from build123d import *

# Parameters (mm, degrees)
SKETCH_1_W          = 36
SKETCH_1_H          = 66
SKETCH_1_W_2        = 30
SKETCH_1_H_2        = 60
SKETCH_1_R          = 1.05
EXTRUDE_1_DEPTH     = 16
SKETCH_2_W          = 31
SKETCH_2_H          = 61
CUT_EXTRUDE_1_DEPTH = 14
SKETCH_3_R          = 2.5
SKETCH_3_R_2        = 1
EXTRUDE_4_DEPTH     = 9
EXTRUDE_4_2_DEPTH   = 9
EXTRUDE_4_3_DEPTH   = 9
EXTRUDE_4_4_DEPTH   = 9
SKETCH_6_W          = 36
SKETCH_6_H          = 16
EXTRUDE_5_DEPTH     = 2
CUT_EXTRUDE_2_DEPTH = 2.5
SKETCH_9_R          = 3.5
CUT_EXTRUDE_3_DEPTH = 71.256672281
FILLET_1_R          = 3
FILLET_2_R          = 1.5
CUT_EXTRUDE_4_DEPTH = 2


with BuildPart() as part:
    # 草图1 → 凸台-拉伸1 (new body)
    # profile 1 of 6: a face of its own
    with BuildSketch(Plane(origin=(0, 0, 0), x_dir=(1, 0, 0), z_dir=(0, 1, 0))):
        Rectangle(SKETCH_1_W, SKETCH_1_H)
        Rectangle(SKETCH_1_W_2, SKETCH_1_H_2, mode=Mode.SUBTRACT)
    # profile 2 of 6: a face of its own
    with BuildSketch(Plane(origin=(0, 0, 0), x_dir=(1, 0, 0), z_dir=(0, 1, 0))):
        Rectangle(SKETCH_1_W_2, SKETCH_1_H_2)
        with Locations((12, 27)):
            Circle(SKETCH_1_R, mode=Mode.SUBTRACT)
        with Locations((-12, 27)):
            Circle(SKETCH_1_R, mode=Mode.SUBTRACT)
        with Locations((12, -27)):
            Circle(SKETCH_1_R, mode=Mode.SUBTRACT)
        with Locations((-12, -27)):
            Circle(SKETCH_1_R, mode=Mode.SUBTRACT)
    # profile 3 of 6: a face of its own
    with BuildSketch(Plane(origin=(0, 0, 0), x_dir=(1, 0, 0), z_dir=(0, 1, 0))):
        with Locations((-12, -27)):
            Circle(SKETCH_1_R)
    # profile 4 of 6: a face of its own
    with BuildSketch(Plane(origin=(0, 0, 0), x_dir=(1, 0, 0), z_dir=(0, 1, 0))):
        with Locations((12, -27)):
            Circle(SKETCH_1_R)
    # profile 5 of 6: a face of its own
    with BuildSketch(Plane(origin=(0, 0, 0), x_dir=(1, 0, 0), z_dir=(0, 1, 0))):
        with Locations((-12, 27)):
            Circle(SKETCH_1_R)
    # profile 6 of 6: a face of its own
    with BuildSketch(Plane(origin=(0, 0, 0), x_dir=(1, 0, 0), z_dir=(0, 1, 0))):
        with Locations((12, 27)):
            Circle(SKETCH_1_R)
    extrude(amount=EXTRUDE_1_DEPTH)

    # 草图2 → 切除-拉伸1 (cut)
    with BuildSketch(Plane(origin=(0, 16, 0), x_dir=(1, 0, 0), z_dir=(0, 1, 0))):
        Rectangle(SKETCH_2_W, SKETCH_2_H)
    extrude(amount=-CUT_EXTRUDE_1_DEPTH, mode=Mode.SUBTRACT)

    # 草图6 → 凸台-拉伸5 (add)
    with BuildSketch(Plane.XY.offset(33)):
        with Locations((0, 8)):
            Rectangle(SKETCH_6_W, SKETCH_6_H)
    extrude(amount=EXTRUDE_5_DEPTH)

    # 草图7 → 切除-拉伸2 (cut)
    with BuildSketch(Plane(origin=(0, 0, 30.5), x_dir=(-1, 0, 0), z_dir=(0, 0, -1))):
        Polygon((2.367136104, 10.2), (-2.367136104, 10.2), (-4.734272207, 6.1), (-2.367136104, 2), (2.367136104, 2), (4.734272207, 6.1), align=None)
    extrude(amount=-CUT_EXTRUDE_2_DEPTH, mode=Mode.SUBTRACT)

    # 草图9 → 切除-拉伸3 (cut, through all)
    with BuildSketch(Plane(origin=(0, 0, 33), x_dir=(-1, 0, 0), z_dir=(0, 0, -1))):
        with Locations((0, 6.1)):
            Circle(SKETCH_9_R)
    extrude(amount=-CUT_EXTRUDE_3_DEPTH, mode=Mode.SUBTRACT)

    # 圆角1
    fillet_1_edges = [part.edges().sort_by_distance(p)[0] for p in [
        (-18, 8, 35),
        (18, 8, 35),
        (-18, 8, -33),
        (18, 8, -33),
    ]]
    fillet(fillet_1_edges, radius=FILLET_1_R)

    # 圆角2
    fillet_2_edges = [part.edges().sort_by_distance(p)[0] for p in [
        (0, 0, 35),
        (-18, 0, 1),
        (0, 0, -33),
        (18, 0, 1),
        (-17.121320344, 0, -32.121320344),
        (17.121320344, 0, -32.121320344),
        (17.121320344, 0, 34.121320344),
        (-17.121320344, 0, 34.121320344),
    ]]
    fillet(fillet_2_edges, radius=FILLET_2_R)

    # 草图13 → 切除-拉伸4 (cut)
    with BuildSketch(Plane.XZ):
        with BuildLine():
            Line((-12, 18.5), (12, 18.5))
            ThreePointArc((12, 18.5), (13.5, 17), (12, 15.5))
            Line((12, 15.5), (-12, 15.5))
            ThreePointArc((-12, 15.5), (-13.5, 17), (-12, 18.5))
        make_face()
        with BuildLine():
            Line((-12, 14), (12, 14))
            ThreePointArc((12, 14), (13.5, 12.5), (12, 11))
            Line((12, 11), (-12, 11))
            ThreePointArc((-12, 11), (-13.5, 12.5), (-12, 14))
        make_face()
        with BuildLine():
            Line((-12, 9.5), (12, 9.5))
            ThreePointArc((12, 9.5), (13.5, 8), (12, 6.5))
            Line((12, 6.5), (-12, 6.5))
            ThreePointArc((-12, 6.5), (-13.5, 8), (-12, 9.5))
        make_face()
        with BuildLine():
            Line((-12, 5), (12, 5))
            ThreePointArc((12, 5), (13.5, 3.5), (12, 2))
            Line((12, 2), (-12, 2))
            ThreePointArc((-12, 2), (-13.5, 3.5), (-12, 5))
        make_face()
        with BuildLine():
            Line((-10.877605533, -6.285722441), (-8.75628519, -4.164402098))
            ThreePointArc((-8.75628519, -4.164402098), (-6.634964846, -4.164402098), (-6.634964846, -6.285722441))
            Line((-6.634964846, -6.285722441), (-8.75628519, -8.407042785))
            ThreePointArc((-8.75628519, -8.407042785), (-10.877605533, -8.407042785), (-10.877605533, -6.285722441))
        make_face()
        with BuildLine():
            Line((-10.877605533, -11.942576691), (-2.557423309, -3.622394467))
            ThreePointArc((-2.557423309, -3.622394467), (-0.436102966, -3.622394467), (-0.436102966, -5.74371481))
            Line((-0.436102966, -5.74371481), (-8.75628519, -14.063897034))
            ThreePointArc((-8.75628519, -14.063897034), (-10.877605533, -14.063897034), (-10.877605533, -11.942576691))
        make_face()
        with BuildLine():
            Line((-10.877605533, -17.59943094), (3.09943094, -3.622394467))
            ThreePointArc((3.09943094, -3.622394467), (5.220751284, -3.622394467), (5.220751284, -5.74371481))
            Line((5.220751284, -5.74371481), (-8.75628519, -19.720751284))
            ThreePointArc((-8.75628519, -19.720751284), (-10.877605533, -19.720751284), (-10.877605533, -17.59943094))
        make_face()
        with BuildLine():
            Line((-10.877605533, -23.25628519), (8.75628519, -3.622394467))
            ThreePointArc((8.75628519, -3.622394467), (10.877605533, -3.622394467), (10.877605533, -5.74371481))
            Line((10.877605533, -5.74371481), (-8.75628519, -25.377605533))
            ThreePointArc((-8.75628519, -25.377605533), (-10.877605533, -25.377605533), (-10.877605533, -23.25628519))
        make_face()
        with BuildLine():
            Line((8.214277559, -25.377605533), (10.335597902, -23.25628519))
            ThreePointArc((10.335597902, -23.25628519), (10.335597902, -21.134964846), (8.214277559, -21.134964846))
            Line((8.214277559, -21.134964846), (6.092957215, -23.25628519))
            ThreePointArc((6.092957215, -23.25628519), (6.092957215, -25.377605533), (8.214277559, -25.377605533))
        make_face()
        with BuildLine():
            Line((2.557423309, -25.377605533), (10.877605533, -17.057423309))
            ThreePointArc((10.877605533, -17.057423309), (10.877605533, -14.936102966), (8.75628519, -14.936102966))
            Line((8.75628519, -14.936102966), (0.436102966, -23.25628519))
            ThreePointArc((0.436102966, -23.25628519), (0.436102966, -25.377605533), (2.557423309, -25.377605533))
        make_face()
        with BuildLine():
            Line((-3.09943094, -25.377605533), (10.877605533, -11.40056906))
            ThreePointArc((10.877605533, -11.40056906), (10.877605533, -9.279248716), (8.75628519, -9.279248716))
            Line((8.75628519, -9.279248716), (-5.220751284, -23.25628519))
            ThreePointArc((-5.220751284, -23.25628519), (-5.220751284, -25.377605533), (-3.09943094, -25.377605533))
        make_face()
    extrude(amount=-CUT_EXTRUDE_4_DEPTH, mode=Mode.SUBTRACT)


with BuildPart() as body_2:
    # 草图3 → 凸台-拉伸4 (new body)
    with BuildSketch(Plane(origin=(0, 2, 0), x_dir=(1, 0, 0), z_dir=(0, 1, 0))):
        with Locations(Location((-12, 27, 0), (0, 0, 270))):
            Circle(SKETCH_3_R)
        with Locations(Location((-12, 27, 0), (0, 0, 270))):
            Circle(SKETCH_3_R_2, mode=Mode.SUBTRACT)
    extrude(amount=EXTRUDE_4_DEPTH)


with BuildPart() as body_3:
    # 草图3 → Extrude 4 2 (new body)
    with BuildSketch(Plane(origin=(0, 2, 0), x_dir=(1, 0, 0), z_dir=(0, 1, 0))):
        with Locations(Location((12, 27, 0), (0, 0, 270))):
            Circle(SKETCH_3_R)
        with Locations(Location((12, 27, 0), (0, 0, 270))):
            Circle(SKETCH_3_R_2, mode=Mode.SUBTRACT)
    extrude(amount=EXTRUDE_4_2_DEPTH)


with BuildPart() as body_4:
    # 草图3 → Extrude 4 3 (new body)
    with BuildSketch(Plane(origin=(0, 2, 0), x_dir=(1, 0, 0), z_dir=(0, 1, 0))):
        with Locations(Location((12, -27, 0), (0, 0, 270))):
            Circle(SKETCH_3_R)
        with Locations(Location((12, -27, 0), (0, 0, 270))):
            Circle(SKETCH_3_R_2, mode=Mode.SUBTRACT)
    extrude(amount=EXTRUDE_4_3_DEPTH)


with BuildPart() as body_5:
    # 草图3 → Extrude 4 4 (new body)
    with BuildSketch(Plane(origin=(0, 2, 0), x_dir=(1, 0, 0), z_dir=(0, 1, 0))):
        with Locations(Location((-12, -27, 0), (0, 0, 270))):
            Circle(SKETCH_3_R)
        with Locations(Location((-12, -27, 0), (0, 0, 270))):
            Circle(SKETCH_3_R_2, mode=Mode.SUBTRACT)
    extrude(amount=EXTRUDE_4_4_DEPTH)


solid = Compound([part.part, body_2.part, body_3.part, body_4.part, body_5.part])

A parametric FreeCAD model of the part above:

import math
import FreeCAD as App
import Part
import Sketcher

V = App.Vector
Q = App.Units.Quantity


def edges_at(feature, points):
    """Names of the edges that pass closest to the given points."""
    edges = feature.Shape.Edges
    near = lambda p: min(range(len(edges)), key=lambda i: edges[i].distToShape(Part.Vertex(*p))[0])
    return sorted({f"Edge{near(p) + 1}" for p in points})

doc = App.newDocument("Part")
body = doc.addObject("PartDesign::Body", "Body")

sketch1 = body.newObject("Sketcher::SketchObject", "Sketch")
sketch1.AttachmentSupport = (doc.getObject("XZ_Plane"), [""])
sketch1.MapMode = "FlatFace"
sketch1.addGeometry(Part.LineSegment(V(-18, -33, 0), V(-18, 33, 0)), False)
sketch1.addGeometry(Part.LineSegment(V(-18, 33, 0), V(18, 33, 0)), False)
sketch1.addGeometry(Part.LineSegment(V(18, 33, 0), V(18, -33, 0)), False)
sketch1.addGeometry(Part.LineSegment(V(18, -33, 0), V(-18, -33, 0)), False)
sketch1.addConstraint(Sketcher.Constraint("Coincident", 0, 2, 1, 1))
sketch1.addConstraint(Sketcher.Constraint("Coincident", 1, 2, 2, 1))
sketch1.addConstraint(Sketcher.Constraint("Coincident", 2, 2, 3, 1))
sketch1.addConstraint(Sketcher.Constraint("Coincident", 3, 2, 0, 1))
sketch1.addConstraint(Sketcher.Constraint("Vertical", 0))
sketch1.addConstraint(Sketcher.Constraint("Horizontal", 1))
sketch1.addConstraint(Sketcher.Constraint("Vertical", 2))
sketch1.addConstraint(Sketcher.Constraint("Horizontal", 3))
sketch1.addConstraint(Sketcher.Constraint("Symmetric", 0, 2, 2, 2, -1, 1))
sketch1.addConstraint(Sketcher.Constraint("DistanceX", 1, 1, 1, 2, 36.0))
sketch1.addConstraint(Sketcher.Constraint("DistanceY", 0, 1, 0, 2, 66.0))
pad1 = body.newObject("PartDesign::Pad", "Pad")
pad1.Profile = sketch1
pad1.Length = 16
pad1.Reversed = True

sketch2 = body.newObject("Sketcher::SketchObject", "Sketch001")
sketch2.AttachmentSupport = (doc.getObject("XZ_Plane"), [""])
sketch2.MapMode = "FlatFace"
sketch2.AttachmentOffset = App.Placement(V(0, 0, -16), App.Rotation())
sketch2.addGeometry(Part.LineSegment(V(-15.5, -30.5, 0), V(-15.5, 30.5, 0)), False)
sketch2.addGeometry(Part.LineSegment(V(-15.5, 30.5, 0), V(15.5, 30.5, 0)), False)
sketch2.addGeometry(Part.LineSegment(V(15.5, 30.5, 0), V(15.5, -30.5, 0)), False)
sketch2.addGeometry(Part.LineSegment(V(15.5, -30.5, 0), V(-15.5, -30.5, 0)), False)
sketch2.addConstraint(Sketcher.Constraint("Coincident", 0, 2, 1, 1))
sketch2.addConstraint(Sketcher.Constraint("Coincident", 1, 2, 2, 1))
sketch2.addConstraint(Sketcher.Constraint("Coincident", 2, 2, 3, 1))
sketch2.addConstraint(Sketcher.Constraint("Coincident", 3, 2, 0, 1))
sketch2.addConstraint(Sketcher.Constraint("Vertical", 0))
sketch2.addConstraint(Sketcher.Constraint("Horizontal", 1))
sketch2.addConstraint(Sketcher.Constraint("Vertical", 2))
sketch2.addConstraint(Sketcher.Constraint("Horizontal", 3))
sketch2.addConstraint(Sketcher.Constraint("Symmetric", 0, 2, 2, 2, -1, 1))
sketch2.addConstraint(Sketcher.Constraint("DistanceX", 1, 1, 1, 2, 31.0))
sketch2.addConstraint(Sketcher.Constraint("DistanceY", 0, 1, 0, 2, 61.0))
pocket1 = body.newObject("PartDesign::Pocket", "Pocket")
pocket1.Profile = sketch2
pocket1.Length = 14
pocket1.Reversed = True

sketch3 = body.newObject("Sketcher::SketchObject", "Sketch002")
sketch3.AttachmentSupport = (doc.getObject("XY_Plane"), [""])
sketch3.MapMode = "FlatFace"
sketch3.AttachmentOffset = App.Placement(V(0, 0, 33), App.Rotation())
sketch3.addGeometry(Part.LineSegment(V(-18, 16, 0), V(-18, 0, 0)), False)
sketch3.addGeometry(Part.LineSegment(V(-18, 0, 0), V(18, 0, 0)), False)
sketch3.addGeometry(Part.LineSegment(V(18, 0, 0), V(18, 16, 0)), False)
sketch3.addGeometry(Part.LineSegment(V(18, 16, 0), V(-18, 16, 0)), False)
sketch3.addConstraint(Sketcher.Constraint("Coincident", 0, 2, 1, 1))
sketch3.addConstraint(Sketcher.Constraint("Coincident", 1, 2, 2, 1))
sketch3.addConstraint(Sketcher.Constraint("Coincident", 2, 2, 3, 1))
sketch3.addConstraint(Sketcher.Constraint("Coincident", 3, 2, 0, 1))
sketch3.addConstraint(Sketcher.Constraint("Vertical", 0))
sketch3.addConstraint(Sketcher.Constraint("Horizontal", 1))
sketch3.addConstraint(Sketcher.Constraint("Vertical", 2))
sketch3.addConstraint(Sketcher.Constraint("Horizontal", 3))
sketch3.addConstraint(Sketcher.Constraint("Symmetric", 0, 2, 1, 2, -1, 1))
sketch3.addConstraint(Sketcher.Constraint("DistanceX", 1, 1, 1, 2, 36.0))
sketch3.addConstraint(Sketcher.Constraint("DistanceY", 0, 2, 0, 1, 16.0))
pad2 = body.newObject("PartDesign::Pad", "Pad001")
pad2.Profile = sketch3
pad2.Length = 2

sketch4 = body.newObject("Sketcher::SketchObject", "Sketch003")
sketch4.AttachmentSupport = (doc.getObject("XY_Plane"), [""])
sketch4.MapMode = "FlatFace"
sketch4.AttachmentOffset = App.Placement(V(0, 0, 30.5), App.Rotation())
sketch4.addGeometry(Part.LineSegment(V(-2.367136, 10.2, 0), V(2.367136, 10.2, 0)), False)
sketch4.addGeometry(Part.LineSegment(V(2.367136, 10.2, 0), V(4.734272, 6.1, 0)), False)
sketch4.addGeometry(Part.LineSegment(V(4.734272, 6.1, 0), V(2.367136, 2, 0)), False)
sketch4.addGeometry(Part.LineSegment(V(2.367136, 2, 0), V(-2.367136, 2, 0)), False)
sketch4.addGeometry(Part.LineSegment(V(-2.367136, 2, 0), V(-4.734272, 6.1, 0)), False)
sketch4.addGeometry(Part.LineSegment(V(-4.734272, 6.1, 0), V(-2.367136, 10.2, 0)), False)
sketch4.addConstraint(Sketcher.Constraint("Coincident", 0, 2, 1, 1))
sketch4.addConstraint(Sketcher.Constraint("Coincident", 1, 2, 2, 1))
sketch4.addConstraint(Sketcher.Constraint("Coincident", 2, 2, 3, 1))
sketch4.addConstraint(Sketcher.Constraint("Coincident", 3, 2, 4, 1))
sketch4.addConstraint(Sketcher.Constraint("Coincident", 4, 2, 5, 1))
sketch4.addConstraint(Sketcher.Constraint("Coincident", 5, 2, 0, 1))
sketch4.addConstraint(Sketcher.Constraint("Horizontal", 0))
sketch4.addConstraint(Sketcher.Constraint("Horizontal", 3))
sketch4.addConstraint(Sketcher.Constraint("Symmetric", 1, 2, 4, 2, -2))
sketch4.addConstraint(Sketcher.Constraint("Parallel", 1, 4))
sketch4.addConstraint(Sketcher.Constraint("Parallel", 2, 5))
sketch4.addConstraint(Sketcher.Constraint("Vertical", 0, 2, 2, 2))
sketch4.addConstraint(Sketcher.Constraint("Vertical", 3, 2, 5, 2))
sketch4.addConstraint(Sketcher.Constraint("Angle", 1, Q("-60 deg")))
sketch4.addConstraint(Sketcher.Constraint("DistanceY", -1, 1, 2, 2, 2.0))
sketch4.addConstraint(Sketcher.Constraint("DistanceY", -1, 1, 0, 2, 10.2))
sketch4.addConstraint(Sketcher.Constraint("DistanceX", 0, 1, 0, 2, 4.734272))
pocket2 = body.newObject("PartDesign::Pocket", "Pocket001")
pocket2.Profile = sketch4
pocket2.Length = 2.5
pocket2.Reversed = True

sketch5 = body.newObject("Sketcher::SketchObject", "Sketch004")
sketch5.AttachmentSupport = (doc.getObject("XY_Plane"), [""])
sketch5.MapMode = "FlatFace"
sketch5.AttachmentOffset = App.Placement(V(0, 0, 33), App.Rotation())
sketch5.addGeometry(Part.Circle(V(0, 6.1, 0), V(0, 0, 1), 3.5), False)
sketch5.addConstraint(Sketcher.Constraint("PointOnObject", 0, 3, -2))
sketch5.addConstraint(Sketcher.Constraint("Diameter", 0, 7.0))
sketch5.addConstraint(Sketcher.Constraint("DistanceY", -1, 1, 0, 3, 6.1))
pocket3 = body.newObject("PartDesign::Pocket", "Pocket002")
pocket3.Profile = sketch5
pocket3.Type = "ThroughAll"
pocket3.Reversed = True
doc.recompute()

fillet = body.newObject("PartDesign::Fillet", "Fillet")
fillet.Base = (pocket3, edges_at(pocket3, [
    (-18, 8, 35),
    (18, 8, 35),
    (-18, 8, -33),
    (18, 8, -33),
]))
fillet.Radius = 3
doc.recompute()

fillet2 = body.newObject("PartDesign::Fillet", "Fillet001")
fillet2.Base = (fillet, edges_at(fillet, [
    (0, 0, 35),
    (-18, 0, 1),
    (0, 0, -33),
    (18, 0, 1),
    (-17.121, 0, -32.121),
    (17.121, 0, -32.121),
    (17.121, 0, 34.121),
    (-17.121, 0, 34.121),
]))
fillet2.Radius = 1.5

sketch6 = body.newObject("Sketcher::SketchObject", "Sketch005")
sketch6.AttachmentSupport = (doc.getObject("XZ_Plane"), [""])
sketch6.MapMode = "FlatFace"
sketch6.addGeometry(Part.LineSegment(V(12, 18.5, 0), V(-12, 18.5, 0)), False)
sketch6.addGeometry(Part.ArcOfCircle(Part.Circle(V(-12, 17, 0), V(0, 0, 1), 1.5), math.radians(90), math.radians(270)), False)
sketch6.addGeometry(Part.LineSegment(V(-12, 15.5, 0), V(12, 15.5, 0)), False)
sketch6.addGeometry(Part.ArcOfCircle(Part.Circle(V(12, 17, 0), V(0, 0, 1), 1.5), math.radians(-90), math.radians(90)), False)
sketch6.addGeometry(Part.LineSegment(V(12, 14, 0), V(-12, 14, 0)), False)
sketch6.addGeometry(Part.ArcOfCircle(Part.Circle(V(-12, 12.5, 0), V(0, 0, 1), 1.5), math.radians(90), math.radians(270)), False)
sketch6.addGeometry(Part.LineSegment(V(-12, 11, 0), V(12, 11, 0)), False)
sketch6.addGeometry(Part.ArcOfCircle(Part.Circle(V(12, 12.5, 0), V(0, 0, 1), 1.5), math.radians(-90), math.radians(90)), False)
sketch6.addGeometry(Part.LineSegment(V(12, 9.5, 0), V(-12, 9.5, 0)), False)
sketch6.addGeometry(Part.ArcOfCircle(Part.Circle(V(-12, 8, 0), V(0, 0, 1), 1.5), math.radians(90), math.radians(270)), False)
sketch6.addGeometry(Part.LineSegment(V(-12, 6.5, 0), V(12, 6.5, 0)), False)
sketch6.addGeometry(Part.ArcOfCircle(Part.Circle(V(12, 8, 0), V(0, 0, 1), 1.5), math.radians(-90), math.radians(90)), False)
sketch6.addGeometry(Part.LineSegment(V(12, 5, 0), V(-12, 5, 0)), False)
sketch6.addGeometry(Part.ArcOfCircle(Part.Circle(V(-12, 3.5, 0), V(0, 0, 1), 1.5), math.radians(90), math.radians(270)), False)
sketch6.addGeometry(Part.LineSegment(V(-12, 2, 0), V(12, 2, 0)), False)
sketch6.addGeometry(Part.ArcOfCircle(Part.Circle(V(12, 3.5, 0), V(0, 0, 1), 1.5), math.radians(-90), math.radians(90)), False)
sketch6.addGeometry(Part.LineSegment(V(-8.756285, -4.164402, 0), V(-10.877606, -6.285722, 0)), False)
sketch6.addGeometry(Part.ArcOfCircle(Part.Circle(V(-9.816945, -7.346383, 0), V(0, 0, 1), 1.5), math.radians(135), math.radians(315)), False)
sketch6.addGeometry(Part.LineSegment(V(-8.756285, -8.407043, 0), V(-6.634965, -6.285722, 0)), False)
sketch6.addGeometry(Part.ArcOfCircle(Part.Circle(V(-7.695625, -5.225062, 0), V(0, 0, 1), 1.5), math.radians(-45), math.radians(135)), False)
sketch6.addGeometry(Part.LineSegment(V(-2.557423, -3.622394, 0), V(-10.877606, -11.942577, 0)), False)
sketch6.addGeometry(Part.ArcOfCircle(Part.Circle(V(-9.816945, -13.003237, 0), V(0, 0, 1), 1.5), math.radians(135), math.radians(315)), False)
sketch6.addGeometry(Part.LineSegment(V(-8.756285, -14.063897, 0), V(-0.436103, -5.743715, 0)), False)
sketch6.addGeometry(Part.ArcOfCircle(Part.Circle(V(-1.496763, -4.683055, 0), V(0, 0, 1), 1.5), math.radians(-45), math.radians(135)), False)
sketch6.addGeometry(Part.LineSegment(V(3.099431, -3.622394, 0), V(-10.877606, -17.599431, 0)), False)
sketch6.addGeometry(Part.ArcOfCircle(Part.Circle(V(-9.816945, -18.660091, 0), V(0, 0, 1), 1.5), math.radians(135), math.radians(315)), False)
sketch6.addGeometry(Part.LineSegment(V(-8.756285, -19.720751, 0), V(5.220751, -5.743715, 0)), False)
sketch6.addGeometry(Part.ArcOfCircle(Part.Circle(V(4.160091, -4.683055, 0), V(0, 0, 1), 1.5), math.radians(-45), math.radians(135)), False)
sketch6.addGeometry(Part.LineSegment(V(8.756285, -3.622394, 0), V(-10.877606, -23.256285, 0)), False)
sketch6.addGeometry(Part.ArcOfCircle(Part.Circle(V(-9.816945, -24.316945, 0), V(0, 0, 1), 1.5), math.radians(135), math.radians(315)), False)
sketch6.addGeometry(Part.LineSegment(V(-8.756285, -25.377606, 0), V(10.877606, -5.743715, 0)), False)
sketch6.addGeometry(Part.ArcOfCircle(Part.Circle(V(9.816945, -4.683055, 0), V(0, 0, 1), 1.5), math.radians(-45), math.radians(135)), False)
sketch6.addGeometry(Part.LineSegment(V(8.214278, -25.377606, 0), V(10.335598, -23.256285, 0)), False)
sketch6.addGeometry(Part.ArcOfCircle(Part.Circle(V(9.274938, -22.195625, 0), V(0, 0, 1), 1.5), math.radians(-45), math.radians(135)), False)
sketch6.addGeometry(Part.LineSegment(V(8.214278, -21.134965, 0), V(6.092957, -23.256285, 0)), False)
sketch6.addGeometry(Part.ArcOfCircle(Part.Circle(V(7.153617, -24.316945, 0), V(0, 0, 1), 1.5), math.radians(135), math.radians(315)), False)
sketch6.addGeometry(Part.LineSegment(V(2.557423, -25.377606, 0), V(10.877606, -17.057423, 0)), False)
sketch6.addGeometry(Part.ArcOfCircle(Part.Circle(V(9.816945, -15.996763, 0), V(0, 0, 1), 1.5), math.radians(-45), math.radians(135)), False)
sketch6.addGeometry(Part.LineSegment(V(8.756285, -14.936103, 0), V(0.436103, -23.256285, 0)), False)
sketch6.addGeometry(Part.ArcOfCircle(Part.Circle(V(1.496763, -24.316945, 0), V(0, 0, 1), 1.5), math.radians(135), math.radians(315)), False)
sketch6.addGeometry(Part.LineSegment(V(-3.099431, -25.377606, 0), V(10.877606, -11.400569, 0)), False)
sketch6.addGeometry(Part.ArcOfCircle(Part.Circle(V(9.816945, -10.339909, 0), V(0, 0, 1), 1.5), math.radians(-45), math.radians(135)), False)
sketch6.addGeometry(Part.LineSegment(V(8.756285, -9.279249, 0), V(-5.220751, -23.256285, 0)), False)
sketch6.addGeometry(Part.ArcOfCircle(Part.Circle(V(-4.160091, -24.316945, 0), V(0, 0, 1), 1.5), math.radians(135), math.radians(315)), False)
sketch6.addConstraint(Sketcher.Constraint("Tangent", 0, 2, 1, 1))
sketch6.addConstraint(Sketcher.Constraint("Tangent", 1, 2, 2, 1))
sketch6.addConstraint(Sketcher.Constraint("Tangent", 2, 2, 3, 1))
sketch6.addConstraint(Sketcher.Constraint("Tangent", 3, 2, 0, 1))
sketch6.addConstraint(Sketcher.Constraint("Tangent", 4, 2, 5, 1))
sketch6.addConstraint(Sketcher.Constraint("Tangent", 5, 2, 6, 1))
sketch6.addConstraint(Sketcher.Constraint("Tangent", 6, 2, 7, 1))
sketch6.addConstraint(Sketcher.Constraint("Tangent", 7, 2, 4, 1))
sketch6.addConstraint(Sketcher.Constraint("Tangent", 8, 2, 9, 1))
sketch6.addConstraint(Sketcher.Constraint("Tangent", 9, 2, 10, 1))
sketch6.addConstraint(Sketcher.Constraint("Tangent", 10, 2, 11, 1))
sketch6.addConstraint(Sketcher.Constraint("Tangent", 11, 2, 8, 1))
sketch6.addConstraint(Sketcher.Constraint("Tangent", 12, 2, 13, 1))
sketch6.addConstraint(Sketcher.Constraint("Tangent", 13, 2, 14, 1))
sketch6.addConstraint(Sketcher.Constraint("Tangent", 14, 2, 15, 1))
sketch6.addConstraint(Sketcher.Constraint("Tangent", 15, 2, 12, 1))
sketch6.addConstraint(Sketcher.Constraint("Tangent", 16, 2, 17, 1))
sketch6.addConstraint(Sketcher.Constraint("Tangent", 17, 2, 18, 1))
sketch6.addConstraint(Sketcher.Constraint("Tangent", 18, 2, 19, 1))
sketch6.addConstraint(Sketcher.Constraint("Tangent", 19, 2, 16, 1))
sketch6.addConstraint(Sketcher.Constraint("Tangent", 20, 2, 21, 1))
sketch6.addConstraint(Sketcher.Constraint("Tangent", 21, 2, 22, 1))
sketch6.addConstraint(Sketcher.Constraint("Tangent", 22, 2, 23, 1))
sketch6.addConstraint(Sketcher.Constraint("Tangent", 23, 2, 20, 1))
sketch6.addConstraint(Sketcher.Constraint("Tangent", 24, 2, 25, 1))
sketch6.addConstraint(Sketcher.Constraint("Tangent", 25, 2, 26, 1))
sketch6.addConstraint(Sketcher.Constraint("Tangent", 26, 2, 27, 1))
sketch6.addConstraint(Sketcher.Constraint("Tangent", 27, 2, 24, 1))
sketch6.addConstraint(Sketcher.Constraint("Tangent", 28, 2, 29, 1))
sketch6.addConstraint(Sketcher.Constraint("Tangent", 29, 2, 30, 1))
sketch6.addConstraint(Sketcher.Constraint("Tangent", 30, 2, 31, 1))
sketch6.addConstraint(Sketcher.Constraint("Tangent", 31, 2, 28, 1))
sketch6.addConstraint(Sketcher.Constraint("Tangent", 32, 2, 33, 1))
sketch6.addConstraint(Sketcher.Constraint("Tangent", 33, 2, 34, 1))
sketch6.addConstraint(Sketcher.Constraint("Tangent", 34, 2, 35, 1))
sketch6.addConstraint(Sketcher.Constraint("Tangent", 35, 2, 32, 1))
sketch6.addConstraint(Sketcher.Constraint("Tangent", 36, 2, 37, 1))
sketch6.addConstraint(Sketcher.Constraint("Tangent", 37, 2, 38, 1))
sketch6.addConstraint(Sketcher.Constraint("Tangent", 38, 2, 39, 1))
sketch6.addConstraint(Sketcher.Constraint("Tangent", 39, 2, 36, 1))
sketch6.addConstraint(Sketcher.Constraint("Tangent", 40, 2, 41, 1))
sketch6.addConstraint(Sketcher.Constraint("Tangent", 41, 2, 42, 1))
sketch6.addConstraint(Sketcher.Constraint("Tangent", 42, 2, 43, 1))
sketch6.addConstraint(Sketcher.Constraint("Tangent", 43, 2, 40, 1))
sketch6.addConstraint(Sketcher.Constraint("Horizontal", 0))
sketch6.addConstraint(Sketcher.Constraint("Horizontal", 2))
sketch6.addConstraint(Sketcher.Constraint("Horizontal", 4))
sketch6.addConstraint(Sketcher.Constraint("Horizontal", 6))
sketch6.addConstraint(Sketcher.Constraint("Horizontal", 8))
sketch6.addConstraint(Sketcher.Constraint("Horizontal", 10))
sketch6.addConstraint(Sketcher.Constraint("Horizontal", 12))
sketch6.addConstraint(Sketcher.Constraint("Horizontal", 14))
sketch6.addConstraint(Sketcher.Constraint("Equal", 3, 5))
sketch6.addConstraint(Sketcher.Constraint("Equal", 7, 9))
sketch6.addConstraint(Sketcher.Constraint("Equal", 11, 13))
sketch6.addConstraint(Sketcher.Constraint("Equal", 15, 17))
sketch6.addConstraint(Sketcher.Constraint("Equal", 17, 19))
sketch6.addConstraint(Sketcher.Constraint("Equal", 19, 21))
sketch6.addConstraint(Sketcher.Constraint("Equal", 21, 23))
sketch6.addConstraint(Sketcher.Constraint("Equal", 23, 25))
sketch6.addConstraint(Sketcher.Constraint("Equal", 25, 27))
sketch6.addConstraint(Sketcher.Constraint("Equal", 27, 29))
sketch6.addConstraint(Sketcher.Constraint("Equal", 29, 31))
sketch6.addConstraint(Sketcher.Constraint("Equal", 31, 33))
sketch6.addConstraint(Sketcher.Constraint("Equal", 33, 35))
sketch6.addConstraint(Sketcher.Constraint("Equal", 35, 37))
sketch6.addConstraint(Sketcher.Constraint("Equal", 37, 39))
sketch6.addConstraint(Sketcher.Constraint("Equal", 39, 41))
sketch6.addConstraint(Sketcher.Constraint("Equal", 41, 43))
sketch6.addConstraint(Sketcher.Constraint("Parallel", 18, 20))
sketch6.addConstraint(Sketcher.Constraint("Parallel", 22, 24))
sketch6.addConstraint(Sketcher.Constraint("Parallel", 26, 28))
sketch6.addConstraint(Sketcher.Constraint("Parallel", 30, 32))
sketch6.addConstraint(Sketcher.Constraint("Parallel", 34, 36))
sketch6.addConstraint(Sketcher.Constraint("Parallel", 38, 40))
sketch6.addConstraint(Sketcher.Constraint("Horizontal", 23, 3, 27, 3))
sketch6.addConstraint(Sketcher.Constraint("Horizontal", 27, 3, 31, 3))
sketch6.addConstraint(Sketcher.Constraint("Horizontal", 29, 3, 35, 3))
sketch6.addConstraint(Sketcher.Constraint("Horizontal", 35, 3, 39, 3))
sketch6.addConstraint(Sketcher.Constraint("Horizontal", 39, 3, 43, 3))
sketch6.addConstraint(Sketcher.Constraint("Horizontal", 16, 2, 18, 2))
sketch6.addConstraint(Sketcher.Constraint("Horizontal", 28, 2, 32, 2))
sketch6.addConstraint(Sketcher.Constraint("Vertical", 1, 3, 5, 3))
sketch6.addConstraint(Sketcher.Constraint("Vertical", 3, 3, 7, 3))
sketch6.addConstraint(Sketcher.Constraint("Vertical", 5, 3, 9, 3))
sketch6.addConstraint(Sketcher.Constraint("Vertical", 7, 3, 11, 3))
sketch6.addConstraint(Sketcher.Constraint("Vertical", 9, 3, 13, 3))
sketch6.addConstraint(Sketcher.Constraint("Vertical", 11, 3, 15, 3))
sketch6.addConstraint(Sketcher.Constraint("Vertical", 17, 3, 21, 3))
sketch6.addConstraint(Sketcher.Constraint("Vertical", 21, 3, 25, 3))
sketch6.addConstraint(Sketcher.Constraint("Vertical", 25, 3, 29, 3))
sketch6.addConstraint(Sketcher.Constraint("Vertical", 31, 3, 37, 3))
sketch6.addConstraint(Sketcher.Constraint("Vertical", 37, 3, 41, 3))
sketch6.addConstraint(Sketcher.Constraint("Vertical", 17, 2, 19, 2))
sketch6.addConstraint(Sketcher.Constraint("Equal", 22, 36))
sketch6.addConstraint(Sketcher.Constraint("Equal", 26, 40))
sketch6.addConstraint(Sketcher.Constraint("Radius", 1, 1.5))
sketch6.addConstraint(Sketcher.Constraint("DistanceX", 0, 2, 0, 1, 24.0))
sketch6.addConstraint(Sketcher.Constraint("DistanceX", 1, 3, -1, 1, 12.0))
sketch6.addConstraint(Sketcher.Constraint("DistanceY", -1, 1, 1, 3, 17.0))
sketch6.addConstraint(Sketcher.Constraint("DistanceY", -1, 1, 9, 3, 8.0))
sketch6.addConstraint(Sketcher.Constraint("DistanceY", -1, 1, 4, 2, 14.0))
sketch6.addConstraint(Sketcher.Constraint("DistanceY", -1, 1, 12, 2, 5.0))
sketch6.addConstraint(Sketcher.Constraint("DistanceY", 25, 3, -1, 1, 18.660091))
sketch6.addConstraint(Sketcher.Constraint("DistanceX", -1, 1, 27, 3, 4.160091))
sketch6.addConstraint(Sketcher.Constraint("DistanceY", 41, 3, -1, 1, 10.339909))
sketch6.addConstraint(Sketcher.Constraint("Distance", 20, 11.766515))
sketch6.addConstraint(Sketcher.Constraint("Distance", 24, 19.766515))
sketch6.addConstraint(Sketcher.Constraint("DistanceY", 17, 3, -1, 1, 7.346383))
sketch6.addConstraint(Sketcher.Constraint("DistanceX", -1, 1, 33, 3, 9.274938))
pocket4 = body.newObject("PartDesign::Pocket", "Pocket003")
pocket4.Profile = sketch6
pocket4.Length = 2
body2 = doc.addObject("PartDesign::Body", "Body001")

sketch7 = body2.newObject("Sketcher::SketchObject", "Sketch006")
sketch7.AttachmentSupport = (doc.getObject("XZ_Plane001"), [""])
sketch7.MapMode = "FlatFace"
sketch7.AttachmentOffset = App.Placement(V(0, 0, -2), App.Rotation())
sketch7.addGeometry(Part.Circle(V(-12, -27, 0), V(0, 0, 1), 2.5), False)
sketch7.addGeometry(Part.Circle(V(-12, -27, 0), V(0, 0, 1), 1), False)
sketch7.addConstraint(Sketcher.Constraint("Coincident", 1, 3, 0, 3))
sketch7.addConstraint(Sketcher.Constraint("Diameter", 0, 5.0))
sketch7.addConstraint(Sketcher.Constraint("Diameter", 1, 2.0))
sketch7.addConstraint(Sketcher.Constraint("DistanceX", 0, 3, -1, 1, 12.0))
sketch7.addConstraint(Sketcher.Constraint("DistanceY", 0, 3, -1, 1, 27.0))
pad3 = body2.newObject("PartDesign::Pad", "Pad002")
pad3.Profile = sketch7
pad3.Length = 9
pad3.Reversed = True
body3 = doc.addObject("PartDesign::Body", "Body002")

sketch8 = body3.newObject("Sketcher::SketchObject", "Sketch007")
sketch8.AttachmentSupport = (doc.getObject("XZ_Plane002"), [""])
sketch8.MapMode = "FlatFace"
sketch8.AttachmentOffset = App.Placement(V(0, 0, -2), App.Rotation())
sketch8.addGeometry(Part.Circle(V(12, -27, 0), V(0, 0, 1), 2.5), False)
sketch8.addGeometry(Part.Circle(V(12, -27, 0), V(0, 0, 1), 1), False)
sketch8.addConstraint(Sketcher.Constraint("Coincident", 1, 3, 0, 3))
sketch8.addConstraint(Sketcher.Constraint("Diameter", 0, 5.0))
sketch8.addConstraint(Sketcher.Constraint("Diameter", 1, 2.0))
sketch8.addConstraint(Sketcher.Constraint("DistanceX", -1, 1, 0, 3, 12.0))
sketch8.addConstraint(Sketcher.Constraint("DistanceY", 0, 3, -1, 1, 27.0))
pad4 = body3.newObject("PartDesign::Pad", "Pad003")
pad4.Profile = sketch8
pad4.Length = 9
pad4.Reversed = True
body4 = doc.addObject("PartDesign::Body", "Body003")

sketch9 = body4.newObject("Sketcher::SketchObject", "Sketch008")
sketch9.AttachmentSupport = (doc.getObject("XZ_Plane003"), [""])
sketch9.MapMode = "FlatFace"
sketch9.AttachmentOffset = App.Placement(V(0, 0, -2), App.Rotation())
sketch9.addGeometry(Part.Circle(V(12, 27, 0), V(0, 0, 1), 2.5), False)
sketch9.addGeometry(Part.Circle(V(12, 27, 0), V(0, 0, 1), 1), False)
sketch9.addConstraint(Sketcher.Constraint("Coincident", 1, 3, 0, 3))
sketch9.addConstraint(Sketcher.Constraint("Diameter", 0, 5.0))
sketch9.addConstraint(Sketcher.Constraint("Diameter", 1, 2.0))
sketch9.addConstraint(Sketcher.Constraint("DistanceX", -1, 1, 0, 3, 12.0))
sketch9.addConstraint(Sketcher.Constraint("DistanceY", -1, 1, 0, 3, 27.0))
pad5 = body4.newObject("PartDesign::Pad", "Pad004")
pad5.Profile = sketch9
pad5.Length = 9
pad5.Reversed = True
body5 = doc.addObject("PartDesign::Body", "Body004")

sketch10 = body5.newObject("Sketcher::SketchObject", "Sketch009")
sketch10.AttachmentSupport = (doc.getObject("XZ_Plane004"), [""])
sketch10.MapMode = "FlatFace"
sketch10.AttachmentOffset = App.Placement(V(0, 0, -2), App.Rotation())
sketch10.addGeometry(Part.Circle(V(-12, 27, 0), V(0, 0, 1), 2.5), False)
sketch10.addGeometry(Part.Circle(V(-12, 27, 0), V(0, 0, 1), 1), False)
sketch10.addConstraint(Sketcher.Constraint("Coincident", 1, 3, 0, 3))
sketch10.addConstraint(Sketcher.Constraint("Diameter", 0, 5.0))
sketch10.addConstraint(Sketcher.Constraint("Diameter", 1, 2.0))
sketch10.addConstraint(Sketcher.Constraint("DistanceX", 0, 3, -1, 1, 12.0))
sketch10.addConstraint(Sketcher.Constraint("DistanceY", -1, 1, 0, 3, 27.0))
pad6 = body5.newObject("PartDesign::Pad", "Pad005")
pad6.Profile = sketch10
pad6.Length = 9
pad6.Reversed = True

doc.recompute()
